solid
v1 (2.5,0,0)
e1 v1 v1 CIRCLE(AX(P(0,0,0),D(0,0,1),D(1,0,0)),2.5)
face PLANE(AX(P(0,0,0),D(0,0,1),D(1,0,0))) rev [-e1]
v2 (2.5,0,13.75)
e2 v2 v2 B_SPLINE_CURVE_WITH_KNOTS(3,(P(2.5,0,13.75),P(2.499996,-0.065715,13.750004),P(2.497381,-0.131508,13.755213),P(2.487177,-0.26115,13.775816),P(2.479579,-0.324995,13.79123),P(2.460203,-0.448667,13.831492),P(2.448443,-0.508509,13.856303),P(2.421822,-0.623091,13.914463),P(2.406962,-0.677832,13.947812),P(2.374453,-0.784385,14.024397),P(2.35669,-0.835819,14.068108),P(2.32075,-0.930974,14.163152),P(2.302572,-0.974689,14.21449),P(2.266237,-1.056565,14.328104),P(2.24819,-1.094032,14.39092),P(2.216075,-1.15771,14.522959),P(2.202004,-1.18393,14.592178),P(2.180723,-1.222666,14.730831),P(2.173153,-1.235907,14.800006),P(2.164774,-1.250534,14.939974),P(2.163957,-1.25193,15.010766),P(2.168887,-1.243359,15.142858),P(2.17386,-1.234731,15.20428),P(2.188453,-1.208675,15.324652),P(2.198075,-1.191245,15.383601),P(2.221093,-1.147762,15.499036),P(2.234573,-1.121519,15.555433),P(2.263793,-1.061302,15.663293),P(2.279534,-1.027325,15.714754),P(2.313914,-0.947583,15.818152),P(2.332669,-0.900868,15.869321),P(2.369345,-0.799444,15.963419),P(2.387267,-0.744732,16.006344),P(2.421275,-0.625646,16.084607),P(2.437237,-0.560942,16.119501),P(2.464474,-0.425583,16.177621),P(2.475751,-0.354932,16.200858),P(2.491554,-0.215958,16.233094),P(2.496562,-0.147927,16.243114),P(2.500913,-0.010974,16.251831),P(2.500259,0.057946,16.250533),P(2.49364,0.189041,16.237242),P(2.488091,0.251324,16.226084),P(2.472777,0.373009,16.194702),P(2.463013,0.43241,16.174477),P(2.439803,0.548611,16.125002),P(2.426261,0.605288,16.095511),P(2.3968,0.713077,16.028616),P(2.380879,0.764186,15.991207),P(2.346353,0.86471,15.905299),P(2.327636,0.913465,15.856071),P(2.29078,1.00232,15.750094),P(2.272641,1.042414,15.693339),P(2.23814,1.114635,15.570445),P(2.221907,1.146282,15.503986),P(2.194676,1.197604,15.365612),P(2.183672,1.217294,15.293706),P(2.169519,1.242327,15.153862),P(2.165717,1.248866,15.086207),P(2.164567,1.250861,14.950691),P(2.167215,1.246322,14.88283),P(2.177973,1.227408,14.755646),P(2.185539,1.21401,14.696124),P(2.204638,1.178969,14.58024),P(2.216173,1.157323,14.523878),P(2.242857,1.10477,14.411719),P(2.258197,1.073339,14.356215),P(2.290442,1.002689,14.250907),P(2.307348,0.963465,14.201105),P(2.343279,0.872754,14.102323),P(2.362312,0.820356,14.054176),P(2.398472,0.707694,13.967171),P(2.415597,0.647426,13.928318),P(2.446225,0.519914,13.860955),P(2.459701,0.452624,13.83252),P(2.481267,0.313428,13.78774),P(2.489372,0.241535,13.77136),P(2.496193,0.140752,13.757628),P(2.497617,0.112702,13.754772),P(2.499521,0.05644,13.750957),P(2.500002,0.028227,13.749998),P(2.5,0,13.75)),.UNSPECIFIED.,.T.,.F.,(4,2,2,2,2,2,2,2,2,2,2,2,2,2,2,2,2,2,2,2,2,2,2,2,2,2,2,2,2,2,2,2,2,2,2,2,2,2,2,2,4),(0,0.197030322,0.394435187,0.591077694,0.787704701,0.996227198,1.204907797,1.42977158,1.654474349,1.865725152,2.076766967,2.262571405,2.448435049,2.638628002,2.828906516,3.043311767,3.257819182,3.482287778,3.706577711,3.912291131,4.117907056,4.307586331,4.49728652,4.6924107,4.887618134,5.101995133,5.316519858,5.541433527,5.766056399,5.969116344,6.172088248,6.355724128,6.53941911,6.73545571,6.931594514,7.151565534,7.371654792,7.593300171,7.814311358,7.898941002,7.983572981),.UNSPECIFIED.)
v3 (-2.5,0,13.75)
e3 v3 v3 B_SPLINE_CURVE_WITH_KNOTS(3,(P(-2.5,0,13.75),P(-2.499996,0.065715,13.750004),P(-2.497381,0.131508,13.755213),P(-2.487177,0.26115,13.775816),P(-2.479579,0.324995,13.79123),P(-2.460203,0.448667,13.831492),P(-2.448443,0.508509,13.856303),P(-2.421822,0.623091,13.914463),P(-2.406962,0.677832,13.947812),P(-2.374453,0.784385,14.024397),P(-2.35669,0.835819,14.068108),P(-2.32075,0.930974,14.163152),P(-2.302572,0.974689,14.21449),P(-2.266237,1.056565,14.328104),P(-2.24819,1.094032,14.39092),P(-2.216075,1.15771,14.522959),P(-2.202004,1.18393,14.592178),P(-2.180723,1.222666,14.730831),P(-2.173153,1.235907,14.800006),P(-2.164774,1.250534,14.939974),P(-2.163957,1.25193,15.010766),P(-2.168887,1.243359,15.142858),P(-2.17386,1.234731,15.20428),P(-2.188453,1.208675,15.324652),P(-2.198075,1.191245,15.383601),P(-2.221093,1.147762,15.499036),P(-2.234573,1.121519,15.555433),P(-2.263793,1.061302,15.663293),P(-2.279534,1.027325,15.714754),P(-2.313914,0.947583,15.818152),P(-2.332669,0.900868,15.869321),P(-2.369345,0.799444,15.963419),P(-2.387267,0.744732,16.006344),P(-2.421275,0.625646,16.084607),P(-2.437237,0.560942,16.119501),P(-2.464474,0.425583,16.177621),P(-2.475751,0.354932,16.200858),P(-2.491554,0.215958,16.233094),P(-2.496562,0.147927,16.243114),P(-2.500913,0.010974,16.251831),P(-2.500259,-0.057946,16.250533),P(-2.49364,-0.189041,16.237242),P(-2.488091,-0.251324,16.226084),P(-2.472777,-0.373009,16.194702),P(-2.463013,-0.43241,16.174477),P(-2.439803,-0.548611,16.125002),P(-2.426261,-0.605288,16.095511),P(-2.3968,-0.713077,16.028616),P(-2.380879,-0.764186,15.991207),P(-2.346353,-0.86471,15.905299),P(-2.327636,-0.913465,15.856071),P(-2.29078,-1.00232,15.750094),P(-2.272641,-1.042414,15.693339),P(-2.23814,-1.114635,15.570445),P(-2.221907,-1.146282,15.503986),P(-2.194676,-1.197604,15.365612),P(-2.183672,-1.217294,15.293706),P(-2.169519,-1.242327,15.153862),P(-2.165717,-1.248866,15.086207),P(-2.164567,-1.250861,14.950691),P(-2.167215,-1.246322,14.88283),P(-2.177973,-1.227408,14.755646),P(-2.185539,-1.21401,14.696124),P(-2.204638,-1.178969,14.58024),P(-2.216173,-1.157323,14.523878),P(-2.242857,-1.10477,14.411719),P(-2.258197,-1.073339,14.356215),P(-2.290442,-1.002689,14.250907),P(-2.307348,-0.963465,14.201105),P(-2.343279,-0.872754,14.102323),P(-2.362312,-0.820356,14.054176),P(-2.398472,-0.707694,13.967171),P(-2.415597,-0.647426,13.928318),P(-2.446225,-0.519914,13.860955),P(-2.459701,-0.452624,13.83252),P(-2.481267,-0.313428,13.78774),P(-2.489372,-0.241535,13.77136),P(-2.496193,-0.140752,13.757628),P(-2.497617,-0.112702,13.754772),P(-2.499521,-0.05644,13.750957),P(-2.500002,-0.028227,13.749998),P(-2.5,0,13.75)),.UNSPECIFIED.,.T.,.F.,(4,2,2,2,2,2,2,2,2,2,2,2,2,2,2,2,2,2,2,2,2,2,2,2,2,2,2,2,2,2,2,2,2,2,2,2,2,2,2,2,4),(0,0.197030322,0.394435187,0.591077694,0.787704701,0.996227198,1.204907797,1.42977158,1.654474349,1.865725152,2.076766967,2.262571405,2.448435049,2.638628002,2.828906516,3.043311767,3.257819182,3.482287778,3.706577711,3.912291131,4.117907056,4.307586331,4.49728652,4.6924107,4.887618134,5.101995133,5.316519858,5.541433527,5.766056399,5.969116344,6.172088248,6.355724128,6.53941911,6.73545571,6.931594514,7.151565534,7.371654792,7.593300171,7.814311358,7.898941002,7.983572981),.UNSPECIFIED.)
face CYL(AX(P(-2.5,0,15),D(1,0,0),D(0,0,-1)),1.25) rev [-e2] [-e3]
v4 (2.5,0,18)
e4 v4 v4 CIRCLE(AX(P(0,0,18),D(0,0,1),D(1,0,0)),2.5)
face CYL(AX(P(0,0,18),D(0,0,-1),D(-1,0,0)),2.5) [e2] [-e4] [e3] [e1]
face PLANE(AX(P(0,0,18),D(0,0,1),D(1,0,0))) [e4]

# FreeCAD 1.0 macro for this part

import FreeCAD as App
import Part
import Sketcher

V = App.Vector

doc = App.newDocument("Part")
body = doc.addObject("PartDesign::Body", "Body")

sketch1 = doc.addObject("Sketcher::SketchObject", "Sketch")
body.addObject(sketch1)
sketch1.AttachmentSupport = (doc.XY_Plane, [""])
sketch1.MapMode = "FlatFace"
sketch1.addGeometry(Part.Circle(V(0, 0, 0), V(0, 0, 1), 2.5), False)
sketch1.addConstraint([
    Sketcher.Constraint("Coincident", 0, 3, -1, 1),
    Sketcher.Constraint("Diameter", 0, 5.0),
])
pad1 = doc.addObject("PartDesign::Pad", "Pad")
body.addObject(pad1)
pad1.Profile = sketch1
pad1.Length = 18

sketch2 = doc.addObject("Sketcher::SketchObject", "Sketch001")
body.addObject(sketch2)
sketch2.AttachmentSupport = (doc.YZ_Plane, [""])
sketch2.MapMode = "FlatFace"
sketch2.addGeometry(Part.Circle(V(0, 15, 0), V(0, 0, 1), 1.2), False)
sketch2.addConstraint([
    Sketcher.Constraint("PointOnObject", 0, 3, -2),
    Sketcher.Constraint("Diameter", 0, 2.5),
    Sketcher.Constraint("DistanceY", -1, 1, 0, 3, 15.0),
])
pocket1 = doc.addObject("PartDesign::Pocket", "Pocket")
body.addObject(pocket1)
pocket1.Profile = sketch2
pocket1.Type = "ThroughAll"
pocket1.Midplane = True

doc.recompute()
